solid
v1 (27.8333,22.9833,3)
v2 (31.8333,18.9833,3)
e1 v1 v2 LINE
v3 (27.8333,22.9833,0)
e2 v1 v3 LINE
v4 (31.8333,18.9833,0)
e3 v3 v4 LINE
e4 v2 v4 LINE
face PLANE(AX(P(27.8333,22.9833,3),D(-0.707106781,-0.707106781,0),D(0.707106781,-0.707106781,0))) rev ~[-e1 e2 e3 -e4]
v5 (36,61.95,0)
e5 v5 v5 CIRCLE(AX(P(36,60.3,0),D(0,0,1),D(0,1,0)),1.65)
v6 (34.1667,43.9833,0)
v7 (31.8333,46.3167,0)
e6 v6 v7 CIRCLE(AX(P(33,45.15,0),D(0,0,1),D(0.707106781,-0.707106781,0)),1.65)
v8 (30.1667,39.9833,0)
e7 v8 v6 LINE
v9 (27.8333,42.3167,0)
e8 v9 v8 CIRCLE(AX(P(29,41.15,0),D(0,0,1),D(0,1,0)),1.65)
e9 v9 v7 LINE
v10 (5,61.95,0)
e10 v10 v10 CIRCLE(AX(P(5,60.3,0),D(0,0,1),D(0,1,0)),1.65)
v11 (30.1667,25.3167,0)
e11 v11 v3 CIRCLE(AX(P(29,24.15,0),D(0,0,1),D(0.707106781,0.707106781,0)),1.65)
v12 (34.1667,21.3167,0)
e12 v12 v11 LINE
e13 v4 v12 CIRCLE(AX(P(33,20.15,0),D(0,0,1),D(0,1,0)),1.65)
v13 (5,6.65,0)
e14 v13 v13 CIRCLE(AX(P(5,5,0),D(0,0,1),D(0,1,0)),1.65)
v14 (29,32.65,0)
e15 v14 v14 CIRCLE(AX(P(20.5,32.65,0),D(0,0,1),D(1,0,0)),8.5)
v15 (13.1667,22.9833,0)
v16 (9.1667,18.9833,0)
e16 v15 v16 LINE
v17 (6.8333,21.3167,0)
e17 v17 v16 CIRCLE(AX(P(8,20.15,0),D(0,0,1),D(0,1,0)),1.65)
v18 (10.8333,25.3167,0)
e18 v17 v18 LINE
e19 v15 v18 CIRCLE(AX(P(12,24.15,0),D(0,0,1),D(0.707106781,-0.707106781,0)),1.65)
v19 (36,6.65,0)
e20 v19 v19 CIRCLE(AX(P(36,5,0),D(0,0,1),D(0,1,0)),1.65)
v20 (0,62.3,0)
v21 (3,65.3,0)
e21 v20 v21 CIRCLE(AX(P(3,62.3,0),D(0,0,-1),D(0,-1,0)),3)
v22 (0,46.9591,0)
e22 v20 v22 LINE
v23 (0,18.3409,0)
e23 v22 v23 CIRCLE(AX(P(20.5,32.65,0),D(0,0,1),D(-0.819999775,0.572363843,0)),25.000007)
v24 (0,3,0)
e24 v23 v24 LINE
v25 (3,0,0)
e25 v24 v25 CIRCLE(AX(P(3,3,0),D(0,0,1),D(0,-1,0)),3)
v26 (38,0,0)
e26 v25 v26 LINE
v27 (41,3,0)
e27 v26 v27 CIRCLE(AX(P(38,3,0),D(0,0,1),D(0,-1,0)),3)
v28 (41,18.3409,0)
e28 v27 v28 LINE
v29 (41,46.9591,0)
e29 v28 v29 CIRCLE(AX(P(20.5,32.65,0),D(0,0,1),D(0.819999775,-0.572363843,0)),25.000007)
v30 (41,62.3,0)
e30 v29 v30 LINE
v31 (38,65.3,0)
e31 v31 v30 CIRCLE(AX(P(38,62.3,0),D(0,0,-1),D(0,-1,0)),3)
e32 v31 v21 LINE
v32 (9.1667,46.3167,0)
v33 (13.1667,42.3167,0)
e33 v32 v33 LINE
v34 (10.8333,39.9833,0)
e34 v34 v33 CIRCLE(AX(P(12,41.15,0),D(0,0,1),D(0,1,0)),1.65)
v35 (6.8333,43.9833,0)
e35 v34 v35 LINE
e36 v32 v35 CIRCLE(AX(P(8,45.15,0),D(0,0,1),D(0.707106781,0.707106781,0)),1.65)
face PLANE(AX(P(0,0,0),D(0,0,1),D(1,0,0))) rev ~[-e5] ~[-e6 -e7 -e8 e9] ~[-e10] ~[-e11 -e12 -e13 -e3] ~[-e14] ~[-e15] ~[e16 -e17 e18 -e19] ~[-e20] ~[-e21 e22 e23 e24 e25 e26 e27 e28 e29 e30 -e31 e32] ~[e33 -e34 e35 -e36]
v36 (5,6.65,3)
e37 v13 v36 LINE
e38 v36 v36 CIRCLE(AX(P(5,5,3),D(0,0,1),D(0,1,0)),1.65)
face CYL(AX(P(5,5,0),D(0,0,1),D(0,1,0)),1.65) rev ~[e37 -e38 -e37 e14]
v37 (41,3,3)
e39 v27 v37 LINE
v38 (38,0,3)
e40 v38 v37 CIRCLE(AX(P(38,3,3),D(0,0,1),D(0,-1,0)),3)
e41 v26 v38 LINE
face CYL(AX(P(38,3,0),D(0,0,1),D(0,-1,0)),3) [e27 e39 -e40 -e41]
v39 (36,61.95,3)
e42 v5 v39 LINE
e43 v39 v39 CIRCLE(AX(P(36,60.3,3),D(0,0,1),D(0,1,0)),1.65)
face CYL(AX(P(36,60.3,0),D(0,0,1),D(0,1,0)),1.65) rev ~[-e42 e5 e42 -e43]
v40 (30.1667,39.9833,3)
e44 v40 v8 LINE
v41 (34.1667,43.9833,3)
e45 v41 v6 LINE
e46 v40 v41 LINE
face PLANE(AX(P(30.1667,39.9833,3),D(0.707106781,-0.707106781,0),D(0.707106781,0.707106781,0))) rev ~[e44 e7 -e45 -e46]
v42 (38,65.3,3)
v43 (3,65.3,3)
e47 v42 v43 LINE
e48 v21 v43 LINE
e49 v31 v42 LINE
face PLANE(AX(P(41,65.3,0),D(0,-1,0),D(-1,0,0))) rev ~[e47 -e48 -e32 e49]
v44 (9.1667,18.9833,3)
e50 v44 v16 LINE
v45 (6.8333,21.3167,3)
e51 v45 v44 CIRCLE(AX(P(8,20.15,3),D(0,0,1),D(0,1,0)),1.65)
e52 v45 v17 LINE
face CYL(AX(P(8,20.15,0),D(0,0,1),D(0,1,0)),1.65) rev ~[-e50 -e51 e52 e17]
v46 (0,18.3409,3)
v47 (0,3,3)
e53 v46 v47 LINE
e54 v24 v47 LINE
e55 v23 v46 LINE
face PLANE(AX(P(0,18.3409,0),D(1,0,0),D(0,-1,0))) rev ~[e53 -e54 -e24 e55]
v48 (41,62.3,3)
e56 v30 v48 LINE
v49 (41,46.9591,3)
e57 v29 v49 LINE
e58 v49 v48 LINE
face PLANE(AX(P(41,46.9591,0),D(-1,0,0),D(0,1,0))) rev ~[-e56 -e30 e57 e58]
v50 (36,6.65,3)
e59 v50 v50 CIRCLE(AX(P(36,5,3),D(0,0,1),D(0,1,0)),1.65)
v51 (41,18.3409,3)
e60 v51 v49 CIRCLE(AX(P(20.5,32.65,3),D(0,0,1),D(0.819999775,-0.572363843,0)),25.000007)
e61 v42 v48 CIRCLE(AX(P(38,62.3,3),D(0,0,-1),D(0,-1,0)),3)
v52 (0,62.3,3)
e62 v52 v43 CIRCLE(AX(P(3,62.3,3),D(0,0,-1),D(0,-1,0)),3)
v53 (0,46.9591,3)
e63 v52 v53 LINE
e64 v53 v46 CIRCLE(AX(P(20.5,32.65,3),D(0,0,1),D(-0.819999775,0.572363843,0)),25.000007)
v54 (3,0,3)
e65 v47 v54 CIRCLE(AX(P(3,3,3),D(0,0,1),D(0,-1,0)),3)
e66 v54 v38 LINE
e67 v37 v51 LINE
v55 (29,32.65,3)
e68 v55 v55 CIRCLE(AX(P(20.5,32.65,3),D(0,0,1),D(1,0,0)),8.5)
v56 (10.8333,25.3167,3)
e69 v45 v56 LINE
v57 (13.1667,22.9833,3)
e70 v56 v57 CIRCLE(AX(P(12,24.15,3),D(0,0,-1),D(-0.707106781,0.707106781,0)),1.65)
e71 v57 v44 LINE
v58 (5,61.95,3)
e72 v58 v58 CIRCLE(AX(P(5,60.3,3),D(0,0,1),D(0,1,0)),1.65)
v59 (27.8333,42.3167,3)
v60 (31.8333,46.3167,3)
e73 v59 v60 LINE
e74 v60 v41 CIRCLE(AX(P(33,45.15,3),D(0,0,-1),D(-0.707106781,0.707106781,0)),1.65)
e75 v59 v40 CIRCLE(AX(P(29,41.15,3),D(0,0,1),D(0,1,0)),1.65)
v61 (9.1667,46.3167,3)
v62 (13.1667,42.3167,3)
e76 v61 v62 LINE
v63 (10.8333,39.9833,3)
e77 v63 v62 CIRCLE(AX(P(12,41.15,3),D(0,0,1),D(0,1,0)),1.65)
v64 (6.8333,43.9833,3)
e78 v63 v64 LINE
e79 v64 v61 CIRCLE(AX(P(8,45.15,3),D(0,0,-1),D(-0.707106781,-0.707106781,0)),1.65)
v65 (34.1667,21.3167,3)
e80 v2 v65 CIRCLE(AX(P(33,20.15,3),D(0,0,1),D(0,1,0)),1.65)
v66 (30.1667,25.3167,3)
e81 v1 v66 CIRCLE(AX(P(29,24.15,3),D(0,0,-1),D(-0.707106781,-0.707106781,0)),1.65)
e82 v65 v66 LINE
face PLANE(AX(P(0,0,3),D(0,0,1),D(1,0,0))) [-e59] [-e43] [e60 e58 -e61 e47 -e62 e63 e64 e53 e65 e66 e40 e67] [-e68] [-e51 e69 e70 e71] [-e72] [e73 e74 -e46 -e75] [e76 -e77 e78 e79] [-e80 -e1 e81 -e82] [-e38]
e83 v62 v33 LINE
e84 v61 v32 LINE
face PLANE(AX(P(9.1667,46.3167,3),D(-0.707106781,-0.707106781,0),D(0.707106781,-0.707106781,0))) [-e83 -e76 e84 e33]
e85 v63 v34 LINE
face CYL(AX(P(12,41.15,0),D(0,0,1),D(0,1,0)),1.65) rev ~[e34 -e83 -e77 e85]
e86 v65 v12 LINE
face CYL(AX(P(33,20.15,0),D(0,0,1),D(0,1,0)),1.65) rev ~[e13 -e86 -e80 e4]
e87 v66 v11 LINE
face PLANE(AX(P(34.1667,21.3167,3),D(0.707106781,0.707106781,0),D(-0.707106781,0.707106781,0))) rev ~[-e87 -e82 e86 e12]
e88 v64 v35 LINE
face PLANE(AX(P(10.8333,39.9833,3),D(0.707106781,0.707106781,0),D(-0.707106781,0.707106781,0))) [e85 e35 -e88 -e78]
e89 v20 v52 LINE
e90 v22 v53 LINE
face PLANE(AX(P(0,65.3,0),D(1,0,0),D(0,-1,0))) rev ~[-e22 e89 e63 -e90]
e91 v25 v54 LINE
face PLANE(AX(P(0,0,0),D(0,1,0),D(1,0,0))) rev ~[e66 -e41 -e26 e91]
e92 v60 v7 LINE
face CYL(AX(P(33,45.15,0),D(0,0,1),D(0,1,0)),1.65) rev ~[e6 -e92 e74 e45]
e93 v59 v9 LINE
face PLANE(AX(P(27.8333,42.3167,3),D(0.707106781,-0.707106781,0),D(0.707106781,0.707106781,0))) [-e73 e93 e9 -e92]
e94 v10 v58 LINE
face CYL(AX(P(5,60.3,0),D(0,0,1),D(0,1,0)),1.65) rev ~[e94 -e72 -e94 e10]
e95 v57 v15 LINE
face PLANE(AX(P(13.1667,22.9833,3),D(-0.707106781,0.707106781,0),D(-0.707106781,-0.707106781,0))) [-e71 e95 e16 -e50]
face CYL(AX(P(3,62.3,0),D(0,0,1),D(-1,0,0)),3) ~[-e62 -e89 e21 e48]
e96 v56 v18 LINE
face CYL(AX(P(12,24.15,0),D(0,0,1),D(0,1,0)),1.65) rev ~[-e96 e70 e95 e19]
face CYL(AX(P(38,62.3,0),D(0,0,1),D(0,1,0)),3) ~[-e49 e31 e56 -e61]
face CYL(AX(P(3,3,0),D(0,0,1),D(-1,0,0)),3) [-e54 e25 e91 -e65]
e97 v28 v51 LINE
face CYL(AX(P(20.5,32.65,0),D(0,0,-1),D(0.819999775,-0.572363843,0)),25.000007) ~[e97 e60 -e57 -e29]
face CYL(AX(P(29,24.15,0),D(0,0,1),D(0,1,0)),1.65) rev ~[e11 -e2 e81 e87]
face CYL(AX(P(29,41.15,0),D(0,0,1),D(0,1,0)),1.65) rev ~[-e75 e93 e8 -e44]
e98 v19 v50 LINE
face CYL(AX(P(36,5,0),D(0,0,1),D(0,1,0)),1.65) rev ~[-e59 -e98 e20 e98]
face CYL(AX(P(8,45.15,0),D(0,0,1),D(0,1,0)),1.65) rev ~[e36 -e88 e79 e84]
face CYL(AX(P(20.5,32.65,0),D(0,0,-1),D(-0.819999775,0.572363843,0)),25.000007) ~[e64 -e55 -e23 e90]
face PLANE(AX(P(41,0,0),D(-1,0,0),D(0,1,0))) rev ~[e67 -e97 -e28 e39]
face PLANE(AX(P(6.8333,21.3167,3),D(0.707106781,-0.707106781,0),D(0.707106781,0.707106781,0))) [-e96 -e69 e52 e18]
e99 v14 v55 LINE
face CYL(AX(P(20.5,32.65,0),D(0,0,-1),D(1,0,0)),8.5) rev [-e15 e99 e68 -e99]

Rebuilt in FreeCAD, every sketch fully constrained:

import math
import FreeCAD as App
import Part
import Sketcher
from FreeCAD import Vector


def edges_at(feature, points):
    """Names of the edges that pass closest to the given points."""
    edges = feature.Shape.Edges
    near = lambda p: min(range(len(edges)), key=lambda i: edges[i].distToShape(Part.Vertex(*p))[0])
    return sorted({f"Edge{near(p) + 1}" for p in points})

doc = App.newDocument("Part")
body = doc.addObject("PartDesign::Body", "Body")

# Sketch on XY plane
sketch1 = body.newObject("Sketcher::SketchObject", "Sketch")
sketch1.AttachmentSupport = (doc.getObject("XY_Plane"), [""])
sketch1.MapMode = "FlatFace"
sketch1.addGeometry(Part.LineSegment(Vector(0, 18, 0), Vector(0, 0, 0)), False)
sketch1.addGeometry(Part.LineSegment(Vector(0, 0, 0), Vector(41, 0, 0)), False)
sketch1.addGeometry(Part.LineSegment(Vector(41, 0, 0), Vector(41, 18, 0)), False)
sketch1.addGeometry(Part.ArcOfCircle(Part.Circle(Vector(20, 33, 0), Vector(0, 0, 1), 25), math.radians(-35), math.radians(35)), False)
sketch1.addGeometry(Part.LineSegment(Vector(41, 47, 0), Vector(41, 65, 0)), False)
sketch1.addGeometry(Part.LineSegment(Vector(41, 65, 0), Vector(0, 65, 0)), False)
sketch1.addGeometry(Part.LineSegment(Vector(0, 65, 0), Vector(0, 47, 0)), False)
sketch1.addGeometry(Part.ArcOfCircle(Part.Circle(Vector(20, 33, 0), Vector(0, 0, 1), 25), math.radians(145), math.radians(215)), False)
sketch1.addGeometry(Part.Circle(Vector(20, 33, 0), Vector(0, 0, 1), 8), False)
sketch1.addConstraint(Sketcher.Constraint("Coincident", 0, 2, 1, 1))
sketch1.addConstraint(Sketcher.Constraint("Coincident", 1, 2, 2, 1))
sketch1.addConstraint(Sketcher.Constraint("Coincident", 2, 2, 3, 1))
sketch1.addConstraint(Sketcher.Constraint("Coincident", 3, 2, 4, 1))
sketch1.addConstraint(Sketcher.Constraint("Coincident", 4, 2, 5, 1))
sketch1.addConstraint(Sketcher.Constraint("Coincident", 5, 2, 6, 1))
sketch1.addConstraint(Sketcher.Constraint("Coincident", 6, 2, 7, 1))
sketch1.addConstraint(Sketcher.Constraint("Coincident", 7, 2, 0, 1))
sketch1.addConstraint(Sketcher.Constraint("Vertical", 0))
sketch1.addConstraint(Sketcher.Constraint("Horizontal", 1))
sketch1.addConstraint(Sketcher.Constraint("Vertical", 2))
sketch1.addConstraint(Sketcher.Constraint("Vertical", 4))
sketch1.addConstraint(Sketcher.Constraint("Horizontal", 5))
sketch1.addConstraint(Sketcher.Constraint("Vertical", 6))
sketch1.addConstraint(Sketcher.Constraint("Coincident", 0, 2, -1, 1))
sketch1.addConstraint(Sketcher.Constraint("Coincident", 7, 3, 3, 3))
sketch1.addConstraint(Sketcher.Constraint("Coincident", 8, 3, 3, 3))
sketch1.addConstraint(Sketcher.Constraint("Equal", 3, 7))
sketch1.addConstraint(Sketcher.Constraint("PointOnObject", 5, 2, -2))
sketch1.addConstraint(Sketcher.Constraint("Horizontal", 3, 2, 6, 2))
sketch1.addConstraint(Sketcher.Constraint("Horizontal", 2, 2, 7, 2))
sketch1.addConstraint(Sketcher.Constraint("Equal", 2, 4))
sketch1.addConstraint(Sketcher.Constraint("Diameter", 8, 17.0))
sketch1.addConstraint(Sketcher.Constraint("Radius", 3, 25.0))
sketch1.addConstraint(Sketcher.Constraint("DistanceX", 1, 1, 1, 2, 41.0))
sketch1.addConstraint(Sketcher.Constraint("DistanceY", -1, 1, 4, 2, 65.3))
pad1 = body.newObject("PartDesign::Pad", "Pad")
pad1.Profile = sketch1
pad1.Length = 3

# Sketch on XY plane
sketch2 = body.newObject("Sketcher::SketchObject", "Sketch001")
sketch2.AttachmentSupport = (doc.getObject("XY_Plane"), [""])
sketch2.MapMode = "FlatFace"
sketch2.addGeometry(Part.Circle(Vector(5, 60.3, 0), Vector(0, 0, 1), 1.6), False)
sketch2.addGeometry(Part.Circle(Vector(36, 60.3, 0), Vector(0, 0, 1), 1.6), False)
sketch2.addGeometry(Part.Circle(Vector(5, 5, 0), Vector(0, 0, 1), 1.6), False)
sketch2.addGeometry(Part.Circle(Vector(36, 5, 0), Vector(0, 0, 1), 1.6), False)
sketch2.addGeometry(Part.Circle(Vector(12, 41.1, 0), Vector(0, 0, 1), 1.6), False)
sketch2.addGeometry(Part.Circle(Vector(8, 45.1, 0), Vector(0, 0, 1), 1.6), False)
sketch2.addGeometry(Part.Circle(Vector(29, 41.1, 0), Vector(0, 0, 1), 1.6), False)
sketch2.addGeometry(Part.Circle(Vector(33, 45.1, 0), Vector(0, 0, 1), 1.6), False)
sketch2.addGeometry(Part.Circle(Vector(29, 24.1, 0), Vector(0, 0, 1), 1.6), False)
sketch2.addGeometry(Part.Circle(Vector(12, 24.1, 0), Vector(0, 0, 1), 1.6), False)
sketch2.addGeometry(Part.Circle(Vector(8, 20.1, 0), Vector(0, 0, 1), 1.6), False)
sketch2.addGeometry(Part.Circle(Vector(33, 20.1, 0), Vector(0, 0, 1), 1.6), False)
sketch2.addConstraint(Sketcher.Constraint("Equal", 0, 1))
sketch2.addConstraint(Sketcher.Constraint("Equal", 1, 2))
sketch2.addConstraint(Sketcher.Constraint("Equal", 2, 3))
sketch2.addConstraint(Sketcher.Constraint("Equal", 3, 4))
sketch2.addConstraint(Sketcher.Constraint("Equal", 4, 5))
sketch2.addConstraint(Sketcher.Constraint("Equal", 5, 6))
sketch2.addConstraint(Sketcher.Constraint("Equal", 6, 7))
sketch2.addConstraint(Sketcher.Constraint("Equal", 7, 8))
sketch2.addConstraint(Sketcher.Constraint("Equal", 8, 9))
sketch2.addConstraint(Sketcher.Constraint("Equal", 9, 10))
sketch2.addConstraint(Sketcher.Constraint("Equal", 10, 11))
sketch2.addConstraint(Sketcher.Constraint("Horizontal", 0, 3, 1, 3))
sketch2.addConstraint(Sketcher.Constraint("Horizontal", 2, 3, 3, 3))
sketch2.addConstraint(Sketcher.Constraint("Horizontal", 4, 3, 6, 3))
sketch2.addConstraint(Sketcher.Constraint("Horizontal", 5, 3, 7, 3))
sketch2.addConstraint(Sketcher.Constraint("Horizontal", 8, 3, 9, 3))
sketch2.addConstraint(Sketcher.Constraint("Horizontal", 10, 3, 11, 3))
sketch2.addConstraint(Sketcher.Constraint("Vertical", 0, 3, 2, 3))
sketch2.addConstraint(Sketcher.Constraint("Vertical", 1, 3, 3, 3))
sketch2.addConstraint(Sketcher.Constraint("Vertical", 6, 3, 8, 3))
sketch2.addConstraint(Sketcher.Constraint("Vertical", 4, 3, 9, 3))
sketch2.addConstraint(Sketcher.Constraint("Vertical", 5, 3, 10, 3))
sketch2.addConstraint(Sketcher.Constraint("Vertical", 7, 3, 11, 3))
sketch2.addConstraint(Sketcher.Constraint("Diameter", 0, 3.3))
sketch2.addConstraint(Sketcher.Constraint("DistanceX", -1, 1, 0, 3, 5.0))
sketch2.addConstraint(Sketcher.Constraint("DistanceX", -1, 1, 1, 3, 36.0))
sketch2.addConstraint(Sketcher.Constraint("DistanceY", -1, 1, 2, 3, 5.0))
sketch2.addConstraint(Sketcher.Constraint("DistanceX", -1, 1, 4, 3, 12.0))
sketch2.addConstraint(Sketcher.Constraint("DistanceX", -1, 1, 5, 3, 8.0))
sketch2.addConstraint(Sketcher.Constraint("DistanceX", -1, 1, 6, 3, 29.0))
sketch2.addConstraint(Sketcher.Constraint("DistanceX", -1, 1, 7, 3, 33.0))
sketch2.addConstraint(Sketcher.Constraint("DistanceY", 4, 3, 5, 3, 4.0))
sketch2.addConstraint(Sketcher.Constraint("DistanceY", 8, 3, 6, 3, 17.0))
sketch2.addConstraint(Sketcher.Constraint("DistanceY", 10, 3, 9, 3, 4.0))
sketch2.addConstraint(Sketcher.Constraint("DistanceY", -1, 1, 0, 3, 60.3))
sketch2.addConstraint(Sketcher.Constraint("DistanceY", -1, 1, 4, 3, 41.15))
doc.recompute()
hole = body.newObject("PartDesign::Hole", "Hole")
hole.Profile = sketch2
hole.ThreadType = "None"
hole.Diameter = 3.3
hole.DepthType = "ThroughAll"
hole.Reversed = True

# Sketch on XY plane
sketch3 = body.newObject("Sketcher::SketchObject", "Sketch002")
sketch3.AttachmentSupport = (doc.getObject("XY_Plane"), [""])
sketch3.MapMode = "FlatFace"
sketch3.AttachmentOffset = App.Placement(Vector(0, 0, 3), App.Rotation())
sketch3.addGeometry(Part.ArcOfCircle(Part.Circle(Vector(8, 45.1, 0), Vector(0, 0, 1), 1.6), math.radians(-135), math.radians(45)), False)
sketch3.addGeometry(Part.LineSegment(Vector(6.8, 44, 0), Vector(10.8, 40, 0)), False)
sketch3.addGeometry(Part.ArcOfCircle(Part.Circle(Vector(12, 41.1, 0), Vector(0, 0, 1), 1.6), math.radians(45), math.radians(225)), False)
sketch3.addGeometry(Part.LineSegment(Vector(13.2, 42.3, 0), Vector(9.2, 46.3, 0)), False)
sketch3.addGeometry(Part.ArcOfCircle(Part.Circle(Vector(33, 20.1, 0), Vector(0, 0, 1), 1.6), math.radians(45), math.radians(225)), False)
sketch3.addGeometry(Part.LineSegment(Vector(34.2, 21.3, 0), Vector(30.2, 25.3, 0)), False)
sketch3.addGeometry(Part.ArcOfCircle(Part.Circle(Vector(29, 24.1, 0), Vector(0, 0, 1), 1.6), math.radians(-135), math.radians(45)), False)
sketch3.addGeometry(Part.LineSegment(Vector(27.8, 23, 0), Vector(31.8, 19, 0)), False)
sketch3.addGeometry(Part.ArcOfCircle(Part.Circle(Vector(33, 45.1, 0), Vector(0, 0, 1), 1.6), math.radians(135), math.radians(315)), False)
sketch3.addGeometry(Part.LineSegment(Vector(31.8, 46.3, 0), Vector(27.8, 42.3, 0)), False)
sketch3.addGeometry(Part.ArcOfCircle(Part.Circle(Vector(29, 41.1, 0), Vector(0, 0, 1), 1.6), math.radians(-45), math.radians(135)), False)
sketch3.addGeometry(Part.LineSegment(Vector(30.2, 40, 0), Vector(34.2, 44, 0)), False)
sketch3.addGeometry(Part.ArcOfCircle(Part.Circle(Vector(8, 20.1, 0), Vector(0, 0, 1), 1.6), math.radians(-45), math.radians(135)), False)
sketch3.addGeometry(Part.LineSegment(Vector(9.2, 19, 0), Vector(13.2, 23, 0)), False)
sketch3.addGeometry(Part.ArcOfCircle(Part.Circle(Vector(12, 24.1, 0), Vector(0, 0, 1), 1.6), math.radians(135), math.radians(315)), False)
sketch3.addGeometry(Part.LineSegment(Vector(10.8, 25.3, 0), Vector(6.8, 21.3, 0)), False)
sketch3.addConstraint(Sketcher.Constraint("Tangent", 0, 1, 1, 1))
sketch3.addConstraint(Sketcher.Constraint("Tangent", 1, 2, 2, 2))
sketch3.addConstraint(Sketcher.Constraint("Tangent", 2, 1, 3, 1))
sketch3.addConstraint(Sketcher.Constraint("Tangent", 3, 2, 0, 2))
sketch3.addConstraint(Sketcher.Constraint("Tangent", 4, 1, 5, 1))
sketch3.addConstraint(Sketcher.Constraint("Tangent", 5, 2, 6, 2))
sketch3.addConstraint(Sketcher.Constraint("Tangent", 6, 1, 7, 1))
sketch3.addConstraint(Sketcher.Constraint("Tangent", 7, 2, 4, 2))
sketch3.addConstraint(Sketcher.Constraint("Tangent", 8, 1, 9, 1))
sketch3.addConstraint(Sketcher.Constraint("Tangent", 9, 2, 10, 2))
sketch3.addConstraint(Sketcher.Constraint("Tangent", 10, 1, 11, 1))
sketch3.addConstraint(Sketcher.Constraint("Tangent", 11, 2, 8, 2))
sketch3.addConstraint(Sketcher.Constraint("Tangent", 12, 1, 13, 1))
sketch3.addConstraint(Sketcher.Constraint("Tangent", 13, 2, 14, 2))
sketch3.addConstraint(Sketcher.Constraint("Tangent", 14, 1, 15, 1))
sketch3.addConstraint(Sketcher.Constraint("Tangent", 15, 2, 12, 2))
sketch3.addConstraint(Sketcher.Constraint("Equal", 0, 2))
sketch3.addConstraint(Sketcher.Constraint("Equal", 2, 4))
sketch3.addConstraint(Sketcher.Constraint("Equal", 4, 6))
sketch3.addConstraint(Sketcher.Constraint("Equal", 6, 8))
sketch3.addConstraint(Sketcher.Constraint("Equal", 8, 10))
sketch3.addConstraint(Sketcher.Constraint("Equal", 10, 12))
sketch3.addConstraint(Sketcher.Constraint("Equal", 12, 14))
sketch3.addConstraint(Sketcher.Constraint("Parallel", 3, 5))
sketch3.addConstraint(Sketcher.Constraint("Perpendicular", 7, 9))
sketch3.addConstraint(Sketcher.Constraint("Parallel", 11, 13))
sketch3.addConstraint(Sketcher.Constraint("Horizontal", 0, 3, 8, 3))
sketch3.addConstraint(Sketcher.Constraint("Horizontal", 2, 3, 10, 3))
sketch3.addConstraint(Sketcher.Constraint("Horizontal", 4, 3, 12, 3))
sketch3.addConstraint(Sketcher.Constraint("Horizontal", 6, 3, 14, 3))
sketch3.addConstraint(Sketcher.Constraint("Horizontal", 3, 2, 8, 1))
sketch3.addConstraint(Sketcher.Constraint("Vertical", 4, 3, 8, 3))
sketch3.addConstraint(Sketcher.Constraint("Vertical", 6, 3, 10, 3))
sketch3.addConstraint(Sketcher.Constraint("Vertical", 0, 3, 12, 3))
sketch3.addConstraint(Sketcher.Constraint("Radius", 0, 1.65))
sketch3.addConstraint(Sketcher.Constraint("DistanceX", -1, 1, 0, 3, 8.0))
sketch3.addConstraint(Sketcher.Constraint("DistanceX", -1, 1, 2, 3, 12.0))
sketch3.addConstraint(Sketcher.Constraint("DistanceX", -1, 1, 4, 3, 33.0))
sketch3.addConstraint(Sketcher.Constraint("DistanceY", 4, 3, 2, 3, 21.0))
sketch3.addConstraint(Sketcher.Constraint("DistanceY", -1, 1, 0, 3, 45.15))
pocket1 = body.newObject("PartDesign::Pocket", "Pocket")
pocket1.Profile = sketch3
pocket1.Length = 3
doc.recompute()

fillet = body.newObject("PartDesign::Fillet", "Fillet")
fillet.Base = (pocket1, edges_at(pocket1, [
    (41, 65.3, 1.5),
    (0, 65.3, 1.5),
    (0, 0, 1.5),
    (41, 0, 1.5),
]))
fillet.Radius = 3

doc.recompute()
